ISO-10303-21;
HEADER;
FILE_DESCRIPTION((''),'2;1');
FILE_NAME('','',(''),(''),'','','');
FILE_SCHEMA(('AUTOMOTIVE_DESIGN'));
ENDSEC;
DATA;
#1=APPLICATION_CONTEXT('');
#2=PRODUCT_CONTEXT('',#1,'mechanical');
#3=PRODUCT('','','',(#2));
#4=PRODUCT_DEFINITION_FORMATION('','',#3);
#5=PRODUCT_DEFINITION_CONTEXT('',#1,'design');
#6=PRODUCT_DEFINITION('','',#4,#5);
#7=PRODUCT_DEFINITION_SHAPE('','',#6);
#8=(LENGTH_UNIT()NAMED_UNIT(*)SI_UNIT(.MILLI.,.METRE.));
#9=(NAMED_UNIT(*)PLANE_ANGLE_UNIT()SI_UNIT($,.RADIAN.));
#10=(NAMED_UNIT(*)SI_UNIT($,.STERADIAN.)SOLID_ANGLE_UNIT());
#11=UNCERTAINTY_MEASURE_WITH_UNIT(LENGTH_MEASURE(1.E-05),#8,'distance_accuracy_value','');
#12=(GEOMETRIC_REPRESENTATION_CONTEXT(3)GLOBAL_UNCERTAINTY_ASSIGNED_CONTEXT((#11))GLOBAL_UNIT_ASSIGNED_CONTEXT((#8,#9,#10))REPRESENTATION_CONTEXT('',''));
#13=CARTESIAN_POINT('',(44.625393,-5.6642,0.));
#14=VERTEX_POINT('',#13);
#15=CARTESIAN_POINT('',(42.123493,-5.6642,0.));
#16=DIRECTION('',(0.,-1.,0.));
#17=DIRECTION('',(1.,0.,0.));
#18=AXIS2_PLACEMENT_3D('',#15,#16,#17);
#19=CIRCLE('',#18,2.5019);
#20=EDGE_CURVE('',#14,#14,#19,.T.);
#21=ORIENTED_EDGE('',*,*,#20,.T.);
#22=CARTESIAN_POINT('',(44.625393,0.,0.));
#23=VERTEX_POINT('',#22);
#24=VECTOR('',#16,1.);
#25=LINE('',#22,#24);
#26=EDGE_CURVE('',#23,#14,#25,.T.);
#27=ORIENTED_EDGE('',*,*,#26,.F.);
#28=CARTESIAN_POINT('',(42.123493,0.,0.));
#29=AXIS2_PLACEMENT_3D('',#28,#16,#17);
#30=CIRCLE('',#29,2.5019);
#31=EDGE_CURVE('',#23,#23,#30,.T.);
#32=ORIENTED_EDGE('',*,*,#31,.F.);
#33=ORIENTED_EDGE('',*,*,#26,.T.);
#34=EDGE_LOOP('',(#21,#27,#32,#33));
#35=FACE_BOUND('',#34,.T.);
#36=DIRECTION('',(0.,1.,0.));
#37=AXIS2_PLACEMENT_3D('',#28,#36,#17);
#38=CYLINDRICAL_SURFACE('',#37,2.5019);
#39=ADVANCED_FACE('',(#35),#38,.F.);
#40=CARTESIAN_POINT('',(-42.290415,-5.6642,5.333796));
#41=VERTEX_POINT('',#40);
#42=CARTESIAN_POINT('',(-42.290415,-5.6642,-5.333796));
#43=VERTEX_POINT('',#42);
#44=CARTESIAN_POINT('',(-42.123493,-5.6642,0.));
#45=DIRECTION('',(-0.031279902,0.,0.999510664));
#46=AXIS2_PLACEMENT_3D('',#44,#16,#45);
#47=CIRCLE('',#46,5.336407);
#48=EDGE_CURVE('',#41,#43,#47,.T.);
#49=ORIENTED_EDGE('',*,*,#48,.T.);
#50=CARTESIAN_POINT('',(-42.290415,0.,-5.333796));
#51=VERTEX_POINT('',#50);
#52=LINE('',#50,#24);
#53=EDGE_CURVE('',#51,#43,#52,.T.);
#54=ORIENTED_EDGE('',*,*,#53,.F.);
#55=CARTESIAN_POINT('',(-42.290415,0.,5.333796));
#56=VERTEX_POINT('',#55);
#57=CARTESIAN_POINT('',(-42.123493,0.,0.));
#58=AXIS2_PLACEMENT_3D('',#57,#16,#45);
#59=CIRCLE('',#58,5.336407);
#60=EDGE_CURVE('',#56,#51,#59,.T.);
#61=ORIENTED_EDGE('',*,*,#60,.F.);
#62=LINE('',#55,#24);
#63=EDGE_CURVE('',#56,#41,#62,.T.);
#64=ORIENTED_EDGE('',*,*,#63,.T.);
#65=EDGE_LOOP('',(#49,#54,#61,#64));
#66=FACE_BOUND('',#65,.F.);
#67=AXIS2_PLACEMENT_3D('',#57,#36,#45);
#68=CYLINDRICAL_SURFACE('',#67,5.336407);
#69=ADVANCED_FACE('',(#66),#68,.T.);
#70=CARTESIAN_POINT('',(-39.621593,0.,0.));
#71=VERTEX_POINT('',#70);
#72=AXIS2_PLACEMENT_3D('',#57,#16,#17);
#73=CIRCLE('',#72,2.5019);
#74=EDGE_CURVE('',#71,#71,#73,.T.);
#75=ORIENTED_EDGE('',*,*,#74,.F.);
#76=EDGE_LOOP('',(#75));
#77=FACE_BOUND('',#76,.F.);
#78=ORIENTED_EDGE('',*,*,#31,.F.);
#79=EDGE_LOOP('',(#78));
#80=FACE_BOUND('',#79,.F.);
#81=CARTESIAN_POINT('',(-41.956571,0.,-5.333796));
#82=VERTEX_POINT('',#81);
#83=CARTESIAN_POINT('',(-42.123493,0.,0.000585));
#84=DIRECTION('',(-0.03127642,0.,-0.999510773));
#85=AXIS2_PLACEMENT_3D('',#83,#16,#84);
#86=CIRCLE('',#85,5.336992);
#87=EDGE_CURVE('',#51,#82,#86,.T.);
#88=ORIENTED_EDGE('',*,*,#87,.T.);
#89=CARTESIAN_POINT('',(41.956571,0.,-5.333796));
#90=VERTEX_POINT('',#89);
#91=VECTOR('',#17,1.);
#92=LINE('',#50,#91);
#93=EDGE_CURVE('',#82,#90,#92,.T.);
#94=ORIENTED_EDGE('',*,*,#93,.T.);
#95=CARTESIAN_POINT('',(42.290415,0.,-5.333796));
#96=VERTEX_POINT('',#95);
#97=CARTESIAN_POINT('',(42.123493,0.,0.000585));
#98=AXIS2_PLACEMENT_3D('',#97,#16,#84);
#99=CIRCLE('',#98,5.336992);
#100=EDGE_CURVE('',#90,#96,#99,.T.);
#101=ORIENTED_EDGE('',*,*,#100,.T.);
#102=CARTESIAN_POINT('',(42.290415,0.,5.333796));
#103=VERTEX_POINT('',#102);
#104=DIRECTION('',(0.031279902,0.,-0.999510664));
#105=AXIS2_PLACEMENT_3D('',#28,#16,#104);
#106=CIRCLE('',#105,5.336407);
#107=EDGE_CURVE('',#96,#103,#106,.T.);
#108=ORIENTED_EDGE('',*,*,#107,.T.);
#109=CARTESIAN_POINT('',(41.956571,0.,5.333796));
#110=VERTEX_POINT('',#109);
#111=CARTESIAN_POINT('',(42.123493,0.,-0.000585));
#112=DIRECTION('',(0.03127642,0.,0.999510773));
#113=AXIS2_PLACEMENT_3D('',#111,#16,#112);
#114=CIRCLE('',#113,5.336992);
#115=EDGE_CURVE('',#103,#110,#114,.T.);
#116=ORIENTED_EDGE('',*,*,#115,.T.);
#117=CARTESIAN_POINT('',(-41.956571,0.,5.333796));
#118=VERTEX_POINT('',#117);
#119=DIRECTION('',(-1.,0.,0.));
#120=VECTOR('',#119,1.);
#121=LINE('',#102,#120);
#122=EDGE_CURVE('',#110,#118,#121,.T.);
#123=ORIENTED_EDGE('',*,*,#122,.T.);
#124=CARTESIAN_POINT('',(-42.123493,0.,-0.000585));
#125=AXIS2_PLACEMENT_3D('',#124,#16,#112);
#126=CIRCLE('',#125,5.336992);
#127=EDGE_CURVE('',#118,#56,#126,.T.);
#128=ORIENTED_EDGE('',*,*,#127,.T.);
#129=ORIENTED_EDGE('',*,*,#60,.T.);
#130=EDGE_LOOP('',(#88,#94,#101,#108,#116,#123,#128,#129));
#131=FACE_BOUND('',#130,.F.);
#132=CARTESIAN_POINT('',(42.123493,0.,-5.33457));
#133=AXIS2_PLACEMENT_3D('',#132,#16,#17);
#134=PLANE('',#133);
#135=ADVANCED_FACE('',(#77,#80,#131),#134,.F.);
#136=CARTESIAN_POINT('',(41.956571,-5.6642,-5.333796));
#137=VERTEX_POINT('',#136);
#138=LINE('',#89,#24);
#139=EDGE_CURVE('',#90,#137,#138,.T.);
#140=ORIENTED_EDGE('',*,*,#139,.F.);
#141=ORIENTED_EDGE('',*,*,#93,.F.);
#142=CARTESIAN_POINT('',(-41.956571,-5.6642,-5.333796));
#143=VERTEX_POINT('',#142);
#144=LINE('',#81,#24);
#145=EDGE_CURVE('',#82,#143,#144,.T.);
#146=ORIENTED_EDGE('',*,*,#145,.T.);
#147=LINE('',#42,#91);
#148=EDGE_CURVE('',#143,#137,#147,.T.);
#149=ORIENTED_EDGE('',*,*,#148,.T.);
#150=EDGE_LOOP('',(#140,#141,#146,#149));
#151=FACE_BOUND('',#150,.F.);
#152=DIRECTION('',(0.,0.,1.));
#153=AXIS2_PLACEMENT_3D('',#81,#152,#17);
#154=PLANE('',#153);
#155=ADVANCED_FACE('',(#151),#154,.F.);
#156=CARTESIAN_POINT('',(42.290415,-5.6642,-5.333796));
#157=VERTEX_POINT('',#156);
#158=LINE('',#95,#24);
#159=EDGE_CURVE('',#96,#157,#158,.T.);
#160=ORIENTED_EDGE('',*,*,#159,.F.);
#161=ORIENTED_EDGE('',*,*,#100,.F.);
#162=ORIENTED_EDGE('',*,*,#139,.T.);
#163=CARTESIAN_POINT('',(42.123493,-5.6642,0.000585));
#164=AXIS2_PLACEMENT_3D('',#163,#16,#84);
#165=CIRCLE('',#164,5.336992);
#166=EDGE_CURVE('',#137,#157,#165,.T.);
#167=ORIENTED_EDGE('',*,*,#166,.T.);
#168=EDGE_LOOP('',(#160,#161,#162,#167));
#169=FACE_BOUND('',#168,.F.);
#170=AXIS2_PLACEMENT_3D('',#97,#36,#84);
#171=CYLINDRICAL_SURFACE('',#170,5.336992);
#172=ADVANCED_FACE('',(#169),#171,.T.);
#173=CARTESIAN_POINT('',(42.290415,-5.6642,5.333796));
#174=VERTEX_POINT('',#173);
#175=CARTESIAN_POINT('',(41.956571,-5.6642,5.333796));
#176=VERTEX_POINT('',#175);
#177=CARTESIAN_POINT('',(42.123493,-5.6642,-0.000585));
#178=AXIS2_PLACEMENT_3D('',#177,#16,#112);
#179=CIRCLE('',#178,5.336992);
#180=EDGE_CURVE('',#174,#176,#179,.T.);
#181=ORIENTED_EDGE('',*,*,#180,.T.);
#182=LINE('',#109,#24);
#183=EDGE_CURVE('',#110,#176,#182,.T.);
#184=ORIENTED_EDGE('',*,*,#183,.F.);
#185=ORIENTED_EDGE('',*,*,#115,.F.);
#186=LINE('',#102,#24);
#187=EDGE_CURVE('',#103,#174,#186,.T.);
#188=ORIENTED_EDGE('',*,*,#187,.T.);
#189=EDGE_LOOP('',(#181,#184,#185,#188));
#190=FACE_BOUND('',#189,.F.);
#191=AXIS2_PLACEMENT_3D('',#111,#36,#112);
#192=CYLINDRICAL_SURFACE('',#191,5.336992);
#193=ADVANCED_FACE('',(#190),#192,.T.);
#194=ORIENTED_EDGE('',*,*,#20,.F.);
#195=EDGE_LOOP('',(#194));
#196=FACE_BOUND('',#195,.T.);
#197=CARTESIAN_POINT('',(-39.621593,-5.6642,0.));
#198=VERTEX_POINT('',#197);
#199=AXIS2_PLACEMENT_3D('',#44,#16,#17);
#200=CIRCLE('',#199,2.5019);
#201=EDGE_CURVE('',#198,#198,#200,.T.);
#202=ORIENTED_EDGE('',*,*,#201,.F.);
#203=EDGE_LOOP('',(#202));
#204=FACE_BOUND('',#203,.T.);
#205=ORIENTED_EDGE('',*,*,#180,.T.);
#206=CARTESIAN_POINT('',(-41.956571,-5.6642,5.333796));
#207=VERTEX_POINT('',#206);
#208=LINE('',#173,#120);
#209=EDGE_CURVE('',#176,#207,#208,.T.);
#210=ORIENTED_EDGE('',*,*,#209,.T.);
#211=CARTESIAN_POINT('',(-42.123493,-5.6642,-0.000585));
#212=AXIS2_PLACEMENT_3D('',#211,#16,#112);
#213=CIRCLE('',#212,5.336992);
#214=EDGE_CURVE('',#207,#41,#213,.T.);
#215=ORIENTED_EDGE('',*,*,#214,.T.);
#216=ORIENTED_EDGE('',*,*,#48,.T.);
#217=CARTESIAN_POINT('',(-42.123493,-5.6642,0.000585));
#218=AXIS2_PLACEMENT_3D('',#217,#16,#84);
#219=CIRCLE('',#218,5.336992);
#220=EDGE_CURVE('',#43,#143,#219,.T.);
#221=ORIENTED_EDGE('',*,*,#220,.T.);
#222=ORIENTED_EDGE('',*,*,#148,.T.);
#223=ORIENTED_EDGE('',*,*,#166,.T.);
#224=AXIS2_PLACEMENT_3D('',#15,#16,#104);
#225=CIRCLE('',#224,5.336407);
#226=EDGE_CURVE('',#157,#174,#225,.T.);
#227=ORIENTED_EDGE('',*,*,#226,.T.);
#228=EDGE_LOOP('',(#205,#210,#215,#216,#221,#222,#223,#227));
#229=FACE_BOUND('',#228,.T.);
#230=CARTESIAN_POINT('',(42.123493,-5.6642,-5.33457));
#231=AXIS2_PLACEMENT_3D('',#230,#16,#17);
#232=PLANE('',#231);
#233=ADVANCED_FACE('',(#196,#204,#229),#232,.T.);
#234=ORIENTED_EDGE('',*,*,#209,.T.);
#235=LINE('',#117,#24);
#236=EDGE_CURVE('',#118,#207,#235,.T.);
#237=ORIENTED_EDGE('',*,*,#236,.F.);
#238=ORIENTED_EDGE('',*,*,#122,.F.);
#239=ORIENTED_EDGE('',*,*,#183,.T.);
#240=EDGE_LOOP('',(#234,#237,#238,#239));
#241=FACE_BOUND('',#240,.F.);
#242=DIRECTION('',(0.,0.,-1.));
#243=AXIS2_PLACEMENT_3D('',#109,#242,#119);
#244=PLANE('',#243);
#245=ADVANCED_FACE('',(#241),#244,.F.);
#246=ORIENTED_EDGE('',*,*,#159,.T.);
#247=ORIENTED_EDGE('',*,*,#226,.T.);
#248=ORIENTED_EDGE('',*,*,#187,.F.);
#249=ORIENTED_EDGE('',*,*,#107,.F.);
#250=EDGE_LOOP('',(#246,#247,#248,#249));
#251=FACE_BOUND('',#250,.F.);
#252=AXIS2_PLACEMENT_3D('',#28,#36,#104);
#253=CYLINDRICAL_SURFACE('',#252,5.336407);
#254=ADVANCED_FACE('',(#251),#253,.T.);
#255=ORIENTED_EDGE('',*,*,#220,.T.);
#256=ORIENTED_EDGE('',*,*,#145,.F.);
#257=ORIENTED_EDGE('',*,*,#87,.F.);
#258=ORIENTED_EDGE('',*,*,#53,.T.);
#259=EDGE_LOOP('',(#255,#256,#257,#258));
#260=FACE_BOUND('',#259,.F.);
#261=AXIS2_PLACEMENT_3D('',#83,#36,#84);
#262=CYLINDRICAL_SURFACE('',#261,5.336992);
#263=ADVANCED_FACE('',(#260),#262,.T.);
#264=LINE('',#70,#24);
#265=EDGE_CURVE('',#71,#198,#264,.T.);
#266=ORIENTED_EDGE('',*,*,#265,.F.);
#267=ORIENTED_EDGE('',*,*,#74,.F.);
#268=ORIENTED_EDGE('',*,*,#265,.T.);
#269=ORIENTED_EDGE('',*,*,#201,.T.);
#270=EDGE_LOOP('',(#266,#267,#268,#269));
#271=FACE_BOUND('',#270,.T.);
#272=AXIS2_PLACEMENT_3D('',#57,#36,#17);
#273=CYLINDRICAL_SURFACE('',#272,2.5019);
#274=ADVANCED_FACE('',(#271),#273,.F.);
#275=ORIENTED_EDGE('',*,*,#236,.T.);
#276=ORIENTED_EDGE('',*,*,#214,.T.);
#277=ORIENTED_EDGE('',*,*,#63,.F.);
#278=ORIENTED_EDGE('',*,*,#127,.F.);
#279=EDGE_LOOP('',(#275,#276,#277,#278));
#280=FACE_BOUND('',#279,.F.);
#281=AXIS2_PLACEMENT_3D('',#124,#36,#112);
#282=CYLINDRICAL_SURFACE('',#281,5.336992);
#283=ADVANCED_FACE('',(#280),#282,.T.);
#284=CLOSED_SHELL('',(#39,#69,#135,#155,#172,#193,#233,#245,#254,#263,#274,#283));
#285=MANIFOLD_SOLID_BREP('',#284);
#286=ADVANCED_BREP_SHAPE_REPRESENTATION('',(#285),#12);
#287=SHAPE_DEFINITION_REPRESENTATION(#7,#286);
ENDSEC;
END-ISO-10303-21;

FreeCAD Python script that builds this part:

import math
import FreeCAD as App
import Part
import Sketcher
from FreeCAD import Vector
Q = App.Units.Quantity

doc = App.newDocument("Part")
body = doc.addObject("PartDesign::Body", "Body")

sketch1 = body.newObject("Sketcher::SketchObject", "Sketch")
sketch1.AttachmentSupport = (doc.getObject("XZ_Plane"), [""])
sketch1.MapMode = "FlatFace"
sketch1.addGeometry([
    Part.ArcOfCircle(Part.Circle(Vector(42.12, 0, 0), Vector(0, 0, 1), 5.34), math.radians(-91.79), math.radians(-88.21)),
    Part.ArcOfCircle(Part.Circle(Vector(42.12, 0, 0), Vector(0, 0, 1), 5.34), math.radians(-88), math.radians(88)),
    Part.ArcOfCircle(Part.Circle(Vector(42.12, 0, 0), Vector(0, 0, 1), 5.34), math.radians(88.21), math.radians(91.79)),
    Part.LineSegment(Vector(41.96, 5.33, 0), Vector(-41.96, 5.33, 0)),
    Part.ArcOfCircle(Part.Circle(Vector(-42.12, 0, 0), Vector(0, 0, 1), 5.34), math.radians(88.21), math.radians(91.79)),
    Part.ArcOfCircle(Part.Circle(Vector(-42.12, 0, 0), Vector(0, 0, 1), 5.34), math.radians(92), math.radians(268)),
    Part.ArcOfCircle(Part.Circle(Vector(-42.12, 0, 0), Vector(0, 0, 1), 5.34), math.radians(-91.79), math.radians(-88.21)),
    Part.LineSegment(Vector(-41.96, -5.33, 0), Vector(41.96, -5.33, 0)),
    Part.Circle(Vector(-42.12, 0, 0), Vector(0, 0, 1), 2.5),
    Part.Circle(Vector(42.12, 0, 0), Vector(0, 0, 1), 2.5),
], False)
sketch1.addConstraint([
    Sketcher.Constraint("Coincident", 0, 2, 1, 1),
    Sketcher.Constraint("Coincident", 1, 2, 2, 1),
    Sketcher.Constraint("Coincident", 2, 2, 3, 1),
    Sketcher.Constraint("Coincident", 3, 2, 4, 1),
    Sketcher.Constraint("Coincident", 4, 2, 5, 1),
    Sketcher.Constraint("Coincident", 5, 2, 6, 1),
    Sketcher.Constraint("Coincident", 6, 2, 7, 1),
    Sketcher.Constraint("Coincident", 7, 2, 0, 1),
    Sketcher.Constraint("Horizontal", 3),
    Sketcher.Constraint("Horizontal", 7),
    Sketcher.Constraint("Coincident", 8, 3, 5, 3),
    Sketcher.Constraint("Coincident", 9, 3, 1, 3),
    Sketcher.Constraint("Equal", 0, 2),
    Sketcher.Constraint("Equal", 2, 4),
    Sketcher.Constraint("Equal", 1, 5),
    Sketcher.Constraint("Equal", 4, 6),
    Sketcher.Constraint("Equal", 8, 9),
    Sketcher.Constraint("Symmetric", 0, 3, 4, 3, -1, 1),
    Sketcher.Constraint("Symmetric", 2, 3, 6, 3, -1, 1),
    Sketcher.Constraint("Symmetric", 2, 3, 4, 3, -2),
    Sketcher.Constraint("Horizontal", 1, 2, 2, 2),
    Sketcher.Constraint("Horizontal", 3, 2, 4, 2),
    Sketcher.Constraint("Horizontal", 0, 2, 5, 2),
    Sketcher.Constraint("Horizontal", 5, 2, 6, 2),
    Sketcher.Constraint("Vertical", 0, 3, 1, 3),
    Sketcher.Constraint("Vertical", 0, 2, 1, 2),
    Sketcher.Constraint("Diameter", 8, Q("0.197 in")),
    Sketcher.Constraint("Radius", 0, Q("5.336992 mm")),
    Sketcher.Constraint("Radius", 1, Q("5.336407 mm")),
    Sketcher.Constraint("DistanceX", 3, 2, 3, 1, Q("83.913142 mm")),
    Sketcher.Constraint("DistanceX", 2, 3, 0, 2, Q("0.166922 mm")),
])
pad1 = body.newObject("PartDesign::Pad", "Pad")
pad1.Profile = sketch1
pad1.Length = Q("0.223 in")

doc.recompute()
